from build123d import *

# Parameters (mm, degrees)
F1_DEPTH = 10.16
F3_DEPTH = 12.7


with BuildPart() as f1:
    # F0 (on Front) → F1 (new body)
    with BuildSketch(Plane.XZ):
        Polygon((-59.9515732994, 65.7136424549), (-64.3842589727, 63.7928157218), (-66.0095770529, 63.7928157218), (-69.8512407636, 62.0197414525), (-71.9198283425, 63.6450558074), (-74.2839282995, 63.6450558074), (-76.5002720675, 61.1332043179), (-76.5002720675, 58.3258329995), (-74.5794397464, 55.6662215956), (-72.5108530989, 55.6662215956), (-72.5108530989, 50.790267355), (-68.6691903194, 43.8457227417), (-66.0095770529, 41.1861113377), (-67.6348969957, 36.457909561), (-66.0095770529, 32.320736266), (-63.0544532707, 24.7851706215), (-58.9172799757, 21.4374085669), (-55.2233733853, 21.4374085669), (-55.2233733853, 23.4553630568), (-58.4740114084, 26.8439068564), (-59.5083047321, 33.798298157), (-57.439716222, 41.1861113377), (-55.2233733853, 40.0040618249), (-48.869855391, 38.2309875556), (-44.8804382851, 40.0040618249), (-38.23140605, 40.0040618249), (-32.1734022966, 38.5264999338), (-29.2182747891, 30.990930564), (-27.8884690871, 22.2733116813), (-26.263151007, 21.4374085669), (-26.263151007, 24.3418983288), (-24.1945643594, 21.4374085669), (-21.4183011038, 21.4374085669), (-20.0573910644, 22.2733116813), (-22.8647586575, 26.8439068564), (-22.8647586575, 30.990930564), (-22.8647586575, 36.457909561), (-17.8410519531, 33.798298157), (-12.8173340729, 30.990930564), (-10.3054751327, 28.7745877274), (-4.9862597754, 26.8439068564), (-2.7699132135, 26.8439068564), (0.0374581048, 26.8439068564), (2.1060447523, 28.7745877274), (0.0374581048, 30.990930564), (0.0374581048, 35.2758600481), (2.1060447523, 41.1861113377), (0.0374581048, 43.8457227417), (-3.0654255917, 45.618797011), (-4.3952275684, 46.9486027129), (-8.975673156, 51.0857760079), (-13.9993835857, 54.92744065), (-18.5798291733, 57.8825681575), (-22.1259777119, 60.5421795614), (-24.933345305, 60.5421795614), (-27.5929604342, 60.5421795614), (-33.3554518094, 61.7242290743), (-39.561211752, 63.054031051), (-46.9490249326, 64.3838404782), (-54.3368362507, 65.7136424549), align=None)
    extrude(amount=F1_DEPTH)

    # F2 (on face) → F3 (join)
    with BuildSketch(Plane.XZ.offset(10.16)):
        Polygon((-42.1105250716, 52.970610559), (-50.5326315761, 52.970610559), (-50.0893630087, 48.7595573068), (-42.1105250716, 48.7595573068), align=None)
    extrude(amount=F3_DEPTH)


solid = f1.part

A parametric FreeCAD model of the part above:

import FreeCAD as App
import Part
import Sketcher

V = App.Vector
Q = App.Units.Quantity

doc = App.newDocument("Part")
body = doc.addObject("PartDesign::Body", "Body")

# Sketch on XZ plane
sketch1 = body.newObject("Sketcher::SketchObject", "Sketch")
sketch1.AttachmentSupport = (doc.getObject("XZ_Plane"), [""])
sketch1.MapMode = "FlatFace"
sketch1.addGeometry([
    Part.LineSegment(V(-59.951573, 65.713642, 0), V(-64.384259, 63.792816, 0)),  # 0
    Part.LineSegment(V(-64.384259, 63.792816, 0), V(-66.009577, 63.792816, 0)),  # 1
    Part.LineSegment(V(-66.009577, 63.792816, 0), V(-69.851241, 62.019741, 0)),  # 2
    Part.LineSegment(V(-69.851241, 62.019741, 0), V(-71.919828, 63.645056, 0)),  # 3
    Part.LineSegment(V(-71.919828, 63.645056, 0), V(-74.283928, 63.645056, 0)),  # 4
    Part.LineSegment(V(-74.283928, 63.645056, 0), V(-76.500272, 61.133204, 0)),  # 5
    Part.LineSegment(V(-76.500272, 61.133204, 0), V(-76.500272, 58.325833, 0)),  # 6
    Part.LineSegment(V(-76.500272, 58.325833, 0), V(-74.57944, 55.666222, 0)),  # 7
    Part.LineSegment(V(-74.57944, 55.666222, 0), V(-72.510853, 55.666222, 0)),  # 8
    Part.LineSegment(V(-72.510853, 55.666222, 0), V(-72.510853, 50.790267, 0)),  # 9
    Part.LineSegment(V(-72.510853, 50.790267, 0), V(-68.66919, 43.845723, 0)),  # 10
    Part.LineSegment(V(-68.66919, 43.845723, 0), V(-66.009577, 41.186111, 0)),  # 11
    Part.LineSegment(V(-66.009577, 41.186111, 0), V(-67.634897, 36.45791, 0)),  # 12
    Part.LineSegment(V(-67.634897, 36.45791, 0), V(-66.009577, 32.320736, 0)),  # 13
    Part.LineSegment(V(-66.009577, 32.320736, 0), V(-63.054453, 24.785171, 0)),  # 14
    Part.LineSegment(V(-63.054453, 24.785171, 0), V(-58.91728, 21.437409, 0)),  # 15
    Part.LineSegment(V(-58.91728, 21.437409, 0), V(-55.223373, 21.437409, 0)),  # 16
    Part.LineSegment(V(-55.223373, 21.437409, 0), V(-55.223373, 23.455363, 0)),  # 17
    Part.LineSegment(V(-55.223373, 23.455363, 0), V(-58.474011, 26.843907, 0)),  # 18
    Part.LineSegment(V(-58.474011, 26.843907, 0), V(-59.508305, 33.798298, 0)),  # 19
    Part.LineSegment(V(-59.508305, 33.798298, 0), V(-57.439716, 41.186111, 0)),  # 20
    Part.LineSegment(V(-57.439716, 41.186111, 0), V(-55.223373, 40.004062, 0)),  # 21
    Part.LineSegment(V(-55.223373, 40.004062, 0), V(-48.869855, 38.230988, 0)),  # 22
    Part.LineSegment(V(-48.869855, 38.230988, 0), V(-44.880438, 40.004062, 0)),  # 23
    Part.LineSegment(V(-44.880438, 40.004062, 0), V(-38.231406, 40.004062, 0)),  # 24
    Part.LineSegment(V(-38.231406, 40.004062, 0), V(-32.173402, 38.5265, 0)),  # 25
    Part.LineSegment(V(-32.173402, 38.5265, 0), V(-29.218275, 30.990931, 0)),  # 26
    Part.LineSegment(V(-29.218275, 30.990931, 0), V(-27.888469, 22.273312, 0)),  # 27
    Part.LineSegment(V(-27.888469, 22.273312, 0), V(-26.263151, 21.437409, 0)),  # 28
    Part.LineSegment(V(-26.263151, 21.437409, 0), V(-26.263151, 24.341898, 0)),  # 29
    Part.LineSegment(V(-26.263151, 24.341898, 0), V(-24.194564, 21.437409, 0)),  # 30
    Part.LineSegment(V(-24.194564, 21.437409, 0), V(-21.418301, 21.437409, 0)),  # 31
    Part.LineSegment(V(-21.418301, 21.437409, 0), V(-20.057391, 22.273312, 0)),  # 32
    Part.LineSegment(V(-20.057391, 22.273312, 0), V(-22.864759, 26.843907, 0)),  # 33
    Part.LineSegment(V(-22.864759, 26.843907, 0), V(-22.864759, 36.45791, 0)),  # 34
    Part.LineSegment(V(-22.864759, 36.45791, 0), V(-17.841052, 33.798298, 0)),  # 35
    Part.LineSegment(V(-17.841052, 33.798298, 0), V(-12.817334, 30.990931, 0)),  # 36
    Part.LineSegment(V(-12.817334, 30.990931, 0), V(-10.305475, 28.774588, 0)),  # 37
    Part.LineSegment(V(-10.305475, 28.774588, 0), V(-4.98626, 26.843907, 0)),  # 38
    Part.LineSegment(V(-4.98626, 26.843907, 0), V(0.037458, 26.843907, 0)),  # 39
    Part.LineSegment(V(0.037458, 26.843907, 0), V(2.106045, 28.774588, 0)),  # 40
    Part.LineSegment(V(2.106045, 28.774588, 0), V(0.037458, 30.990931, 0)),  # 41
    Part.LineSegment(V(0.037458, 30.990931, 0), V(0.037458, 35.27586, 0)),  # 42
    Part.LineSegment(V(0.037458, 35.27586, 0), V(2.106045, 41.186111, 0)),  # 43
    Part.LineSegment(V(2.106045, 41.186111, 0), V(0.037458, 43.845723, 0)),  # 44
    Part.LineSegment(V(0.037458, 43.845723, 0), V(-3.065426, 45.618797, 0)),  # 45
    Part.LineSegment(V(-3.065426, 45.618797, 0), V(-4.395228, 46.948603, 0)),  # 46
    Part.LineSegment(V(-4.395228, 46.948603, 0), V(-8.975673, 51.085776, 0)),  # 47
    Part.LineSegment(V(-8.975673, 51.085776, 0), V(-13.999384, 54.927441, 0)),  # 48
    Part.LineSegment(V(-13.999384, 54.927441, 0), V(-18.579829, 57.882568, 0)),  # 49
    Part.LineSegment(V(-18.579829, 57.882568, 0), V(-22.125978, 60.54218, 0)),  # 50
    Part.LineSegment(V(-22.125978, 60.54218, 0), V(-27.59296, 60.54218, 0)),  # 51
    Part.LineSegment(V(-27.59296, 60.54218, 0), V(-33.355452, 61.724229, 0)),  # 52
    Part.LineSegment(V(-33.355452, 61.724229, 0), V(-39.561212, 63.054031, 0)),  # 53
    Part.LineSegment(V(-39.561212, 63.054031, 0), V(-46.949025, 64.38384, 0)),  # 54
    Part.LineSegment(V(-46.949025, 64.38384, 0), V(-54.336836, 65.713642, 0)),  # 55
    Part.LineSegment(V(-54.336836, 65.713642, 0), V(-59.951573, 65.713642, 0)),  # 56
], False)
sketch1.addConstraint([
    Sketcher.Constraint("Coincident", 0, 2, 1, 1),
    Sketcher.Constraint("Coincident", 1, 2, 2, 1),
    Sketcher.Constraint("Coincident", 2, 2, 3, 1),
    Sketcher.Constraint("Coincident", 3, 2, 4, 1),
    Sketcher.Constraint("Coincident", 4, 2, 5, 1),
    Sketcher.Constraint("Coincident", 5, 2, 6, 1),
    Sketcher.Constraint("Coincident", 6, 2, 7, 1),
    Sketcher.Constraint("Coincident", 7, 2, 8, 1),
    Sketcher.Constraint("Coincident", 8, 2, 9, 1),
    Sketcher.Constraint("Coincident", 9, 2, 10, 1),
    Sketcher.Constraint("Coincident", 10, 2, 11, 1),
    Sketcher.Constraint("Coincident", 11, 2, 12, 1),
    Sketcher.Constraint("Coincident", 12, 2, 13, 1),
    Sketcher.Constraint("Coincident", 13, 2, 14, 1),
    Sketcher.Constraint("Coincident", 14, 2, 15, 1),
    Sketcher.Constraint("Coincident", 15, 2, 16, 1),
    Sketcher.Constraint("Coincident", 16, 2, 17, 1),
    Sketcher.Constraint("Coincident", 17, 2, 18, 1),
    Sketcher.Constraint("Coincident", 18, 2, 19, 1),
    Sketcher.Constraint("Coincident", 19, 2, 20, 1),
    Sketcher.Constraint("Coincident", 20, 2, 21, 1),
    Sketcher.Constraint("Coincident", 21, 2, 22, 1),
    Sketcher.Constraint("Coincident", 22, 2, 23, 1),
    Sketcher.Constraint("Coincident", 23, 2, 24, 1),
    Sketcher.Constraint("Coincident", 24, 2, 25, 1),
    Sketcher.Constraint("Coincident", 25, 2, 26, 1),
    Sketcher.Constraint("Coincident", 26, 2, 27, 1),
    Sketcher.Constraint("Coincident", 27, 2, 28, 1),
    Sketcher.Constraint("Coincident", 28, 2, 29, 1),
    Sketcher.Constraint("Coincident", 29, 2, 30, 1),
    Sketcher.Constraint("Coincident", 30, 2, 31, 1),
    Sketcher.Constraint("Coincident", 31, 2, 32, 1),
    Sketcher.Constraint("Coincident", 32, 2, 33, 1),
    Sketcher.Constraint("Coincident", 33, 2, 34, 1),
    Sketcher.Constraint("Coincident", 34, 2, 35, 1),
    Sketcher.Constraint("Coincident", 35, 2, 36, 1),
    Sketcher.Constraint("Coincident", 36, 2, 37, 1),
    Sketcher.Constraint("Coincident", 37, 2, 38, 1),
    Sketcher.Constraint("Coincident", 38, 2, 39, 1),
    Sketcher.Constraint("Coincident", 39, 2, 40, 1),
    Sketcher.Constraint("Coincident", 40, 2, 41, 1),
    Sketcher.Constraint("Coincident", 41, 2, 42, 1),
    Sketcher.Constraint("Coincident", 42, 2, 43, 1),
    Sketcher.Constraint("Coincident", 43, 2, 44, 1),
    Sketcher.Constraint("Coincident", 44, 2, 45, 1),
    Sketcher.Constraint("Coincident", 45, 2, 46, 1),
    Sketcher.Constraint("Coincident", 46, 2, 47, 1),
    Sketcher.Constraint("Coincident", 47, 2, 48, 1),
    Sketcher.Constraint("Coincident", 48, 2, 49, 1),
    Sketcher.Constraint("Coincident", 49, 2, 50, 1),
    Sketcher.Constraint("Coincident", 50, 2, 51, 1),
    Sketcher.Constraint("Coincident", 51, 2, 52, 1),
    Sketcher.Constraint("Coincident", 52, 2, 53, 1),
    Sketcher.Constraint("Coincident", 53, 2, 54, 1),
    Sketcher.Constraint("Coincident", 54, 2, 55, 1),
    Sketcher.Constraint("Coincident", 55, 2, 56, 1),
    Sketcher.Constraint("Coincident", 56, 2, 0, 1),
    Sketcher.Constraint("Horizontal", 1),
    Sketcher.Constraint("Horizontal", 4),
    Sketcher.Constraint("Vertical", 6),
    Sketcher.Constraint("Horizontal", 8),
    Sketcher.Constraint("Vertical", 9),
    Sketcher.Constraint("Horizontal", 16),
    Sketcher.Constraint("Vertical", 17),
    Sketcher.Constraint("Horizontal", 24),
    Sketcher.Constraint("Vertical", 29),
    Sketcher.Constraint("Horizontal", 31),
    Sketcher.Constraint("Vertical", 34),
    Sketcher.Constraint("Horizontal", 39),
    Sketcher.Constraint("Vertical", 42),
    Sketcher.Constraint("Horizontal", 51),
    Sketcher.Constraint("Horizontal", 56),
    Sketcher.Constraint("DistanceX", 4, 2, 4, 1, 2.3641),
    Sketcher.Constraint("Distance", 43, 6.261799),
    Sketcher.Constraint("DistanceX", 1, 2, 1, 1, 1.625318),
    Sketcher.Constraint("DistanceY", 6, 2, 6, 1, 2.807371),
    Sketcher.Constraint("DistanceY", 29, 1, 29, 2, 2.90449),
    Sketcher.Constraint("DistanceY", 42, 1, 42, 2, 4.284929),
    Sketcher.Constraint("DistanceY", -1, 1, 19, 2, 33.798298),
    Sketcher.Constraint("DistanceY", -1, 1, 25, 2, 38.5265),
    Sketcher.Constraint("DistanceY", -1, 1, 29, 2, 24.341898),
    Sketcher.Constraint("DistanceX", 31, 2, -1, 1, 21.418301),
    Sketcher.Constraint("DistanceY", -1, 1, 35, 2, 33.798298),
    Sketcher.Constraint("DistanceX", 7, 2, 2, 2, 4.728199),
    Sketcher.Constraint("DistanceY", 10, 2, 8, 2, 11.820499),
    Sketcher.Constraint("DistanceY", 12, 2, 11, 2, 4.728202),
    Sketcher.Constraint("DistanceX", 9, 2, 14, 2, 9.4564),
    Sketcher.Constraint("DistanceY", 15, 2, 12, 2, 15.020501),
    Sketcher.Constraint("DistanceY", 15, 2, 18, 2, 5.406498),
    Sketcher.Constraint("DistanceY", 12, 2, 20, 2, 4.728202),
    Sketcher.Constraint("DistanceX", 19, 2, 24, 2, 21.276899),
    Sketcher.Constraint("DistanceX", 17, 2, 26, 2, 26.005099),
    Sketcher.Constraint("DistanceY", 30, 2, 33, 2, 5.406498),
    Sketcher.Constraint("DistanceY", 28, 2, 33, 2, 5.406498),
    Sketcher.Constraint("DistanceX", 29, 2, 35, 2, 8.422099),
    Sketcher.Constraint("DistanceY", 31, 2, 38, 2, 5.406498),
    Sketcher.Constraint("DistanceX", 46, 2, 45, 2, 1.329802),
    Sketcher.Constraint("DistanceX", 49, 2, 46, 2, 14.184602),
    Sketcher.Constraint("DistanceY", 52, 2, 53, 2, 1.329802),
    Sketcher.Constraint("DistanceY", 54, 2, 55, 2, 1.329802),
    Sketcher.Constraint("DistanceY", 2, 2, 55, 2, 3.693901),
    Sketcher.Constraint("Distance", 0, 4.830971),
    Sketcher.Constraint("Distance", 7, 3.280721),
    Sketcher.Constraint("Distance", 11, 3.76126),
    Sketcher.Constraint("Distance", 14, 8.094288),
    Sketcher.Constraint("Distance", 20, 7.671952),
    Sketcher.Constraint("Distance", 23, 4.365689),
    Sketcher.Constraint("Distance", 25, 6.235591),
    Sketcher.Constraint("Distance", 27, 8.818461),
    Sketcher.Constraint("Distance", 33, 5.363921),
    Sketcher.Constraint("Distance", 35, 5.684291),
    Sketcher.Constraint("Distance", 38, 5.658761),
    Sketcher.Constraint("Distance", 40, 2.82959),
    Sketcher.Constraint("Distance", 44, 3.36936),
    Sketcher.Constraint("Distance", 45, 3.573749),
    Sketcher.Constraint("Distance", 47, 6.172251),
    Sketcher.Constraint("Distance", 52, 5.882478),
    Sketcher.Constraint("Distance", 53, 6.346639),
    Sketcher.Constraint("Distance", 55, 7.506539),
    Sketcher.Constraint("DistanceX", 8, 1, 8, 2, 2.068587),
    Sketcher.Constraint("DistanceX", 16, 1, 16, 2, 3.693907),
    Sketcher.Constraint("DistanceX", 24, 1, 24, 2, 6.649032),
    Sketcher.Constraint("DistanceX", 31, 1, 31, 2, 2.776263),
    Sketcher.Constraint("DistanceX", 39, 1, 39, 2, 5.023718),
    Sketcher.Constraint("DistanceX", 51, 2, 51, 1, 5.466983),
    Sketcher.Constraint("DistanceX", 56, 2, 56, 1, 5.614737),
    Sketcher.Constraint("DistanceY", 9, 2, 9, 1, 4.875954),
    Sketcher.Constraint("DistanceY", 17, 1, 17, 2, 2.017954),
    Sketcher.Constraint("DistanceY", 34, 1, 34, 2, 9.614003),
    Sketcher.Constraint("DistanceX", 0, 2, -1, 1, 64.384259),
    Sketcher.Constraint("DistanceX", 2, 2, -1, 1, 69.851241),
    Sketcher.Constraint("DistanceY", -1, 1, 2, 2, 62.019741),
    Sketcher.Constraint("DistanceX", 3, 2, -1, 1, 71.919828),
    Sketcher.Constraint("DistanceY", -1, 1, 7, 2, 55.666222),
    Sketcher.Constraint("DistanceX", 10, 2, -1, 1, 68.66919),
    Sketcher.Constraint("DistanceY", -1, 1, 11, 2, 41.186111),
    Sketcher.Constraint("DistanceY", -1, 1, 14, 2, 24.785171),
    Sketcher.Constraint("DistanceX", 15, 2, -1, 1, 58.91728),
    Sketcher.Constraint("DistanceX", 18, 2, -1, 1, 58.474011),
    Sketcher.Constraint("DistanceY", -1, 1, 21, 2, 40.004062),
    Sketcher.Constraint("DistanceX", 23, 2, -1, 1, 44.880438),
    Sketcher.Constraint("DistanceY", -1, 1, 23, 2, 40.004062),
    Sketcher.Constraint("DistanceY", -1, 1, 26, 2, 30.990931),
    Sketcher.Constraint("DistanceX", 27, 2, -1, 1, 27.888469),
    Sketcher.Constraint("DistanceX", 28, 2, -1, 1, 26.263151),
    Sketcher.Constraint("DistanceX", 32, 2, -1, 1, 20.057391),
    Sketcher.Constraint("DistanceY", -1, 1, 36, 2, 30.990931),
    Sketcher.Constraint("DistanceX", 38, 2, -1, 1, 4.98626),
    Sketcher.Constraint("DistanceX", -1, 1, 41, 2, 0.037458),
    Sketcher.Constraint("DistanceY", -1, 1, 41, 2, 30.990931),
    Sketcher.Constraint("DistanceY", -1, 1, 43, 2, 41.186111),
    Sketcher.Constraint("DistanceX", -1, 1, 44, 2, 0.037458),
    Sketcher.Constraint("DistanceY", -1, 1, 48, 2, 54.927441),
    Sketcher.Constraint("DistanceX", 49, 2, -1, 1, 18.579829),
    Sketcher.Constraint("DistanceY", -1, 1, 49, 2, 57.882568),
    Sketcher.Constraint("DistanceY", -1, 1, 50, 2, 60.54218),
    Sketcher.Constraint("DistanceX", 51, 2, -1, 1, 27.59296),
    Sketcher.Constraint("DistanceX", 52, 2, -1, 1, 33.355452),
    Sketcher.Constraint("DistanceY", 3, 2, 1, 2, 0.14776),
    Sketcher.Constraint("DistanceY", 5, 2, 4, 2, 2.511851),
    Sketcher.Constraint("DistanceX", 5, 2, 2, 2, 6.649031),
    Sketcher.Constraint("DistanceX", 12, 2, 11, 2, 1.62532),
    Sketcher.Constraint("DistanceX", 12, 2, 13, 2, 1.62532),
    Sketcher.Constraint("DistanceX", 19, 2, 21, 2, 4.284931),
    Sketcher.Constraint("DistanceX", 20, 2, 22, 2, 8.569861),
    Sketcher.Constraint("DistanceX", 36, 2, 37, 2, 2.511859),
    Sketcher.Constraint("DistanceY", 37, 2, 35, 2, 5.02371),
    Sketcher.Constraint("DistanceY", 39, 2, 40, 2, 1.930681),
    Sketcher.Constraint("DistanceY", 44, 2, 46, 2, 3.10288),
    Sketcher.Constraint("DistanceY", 45, 2, 47, 2, 5.466979),
    Sketcher.Constraint("DistanceX", 48, 2, 47, 2, 5.02371),
])
pad1 = body.newObject("PartDesign::Pad", "Pad")
pad1.Profile = sketch1
pad1.Length = Q("0.4 in")

# Sketch on XZ plane
sketch2 = body.newObject("Sketcher::SketchObject", "Sketch001")
sketch2.AttachmentSupport = (doc.getObject("XZ_Plane"), [""])
sketch2.MapMode = "FlatFace"
sketch2.AttachmentOffset = App.Placement(V(0, 0, 0.4 * 25.4), App.Rotation())
sketch2.addGeometry([
    Part.LineSegment(V(-42.1, 53, 0), V(-50.5, 53, 0)),
    Part.LineSegment(V(-50.5, 53, 0), V(-50.1, 48.8, 0)),
    Part.LineSegment(V(-50.1, 48.8, 0), V(-42.1, 48.8, 0)),
    Part.LineSegment(V(-42.1, 48.8, 0), V(-42.1, 53, 0)),
], False)
sketch2.addConstraint([
    Sketcher.Constraint("Coincident", 0, 2, 1, 1),
    Sketcher.Constraint("Coincident", 1, 2, 2, 1),
    Sketcher.Constraint("Coincident", 2, 2, 3, 1),
    Sketcher.Constraint("Coincident", 3, 2, 0, 1),
    Sketcher.Constraint("Horizontal", 0),
    Sketcher.Constraint("Horizontal", 2),
    Sketcher.Constraint("Vertical", 3),
    Sketcher.Constraint("Distance", 1, 4.234319),
    Sketcher.Constraint("DistanceX", 0, 2, 0, 1, 8.422107),
    Sketcher.Constraint("DistanceX", 2, 1, 2, 2, 7.978838),
    Sketcher.Constraint("DistanceX", 0, 2, -1, 1, 50.532632),
    Sketcher.Constraint("DistanceY", -1, 1, 0, 2, 52.970611),
])
pad2 = body.newObject("PartDesign::Pad", "Pad001")
pad2.Profile = sketch2
pad2.Length = Q("0.5 in")

doc.recompute()
